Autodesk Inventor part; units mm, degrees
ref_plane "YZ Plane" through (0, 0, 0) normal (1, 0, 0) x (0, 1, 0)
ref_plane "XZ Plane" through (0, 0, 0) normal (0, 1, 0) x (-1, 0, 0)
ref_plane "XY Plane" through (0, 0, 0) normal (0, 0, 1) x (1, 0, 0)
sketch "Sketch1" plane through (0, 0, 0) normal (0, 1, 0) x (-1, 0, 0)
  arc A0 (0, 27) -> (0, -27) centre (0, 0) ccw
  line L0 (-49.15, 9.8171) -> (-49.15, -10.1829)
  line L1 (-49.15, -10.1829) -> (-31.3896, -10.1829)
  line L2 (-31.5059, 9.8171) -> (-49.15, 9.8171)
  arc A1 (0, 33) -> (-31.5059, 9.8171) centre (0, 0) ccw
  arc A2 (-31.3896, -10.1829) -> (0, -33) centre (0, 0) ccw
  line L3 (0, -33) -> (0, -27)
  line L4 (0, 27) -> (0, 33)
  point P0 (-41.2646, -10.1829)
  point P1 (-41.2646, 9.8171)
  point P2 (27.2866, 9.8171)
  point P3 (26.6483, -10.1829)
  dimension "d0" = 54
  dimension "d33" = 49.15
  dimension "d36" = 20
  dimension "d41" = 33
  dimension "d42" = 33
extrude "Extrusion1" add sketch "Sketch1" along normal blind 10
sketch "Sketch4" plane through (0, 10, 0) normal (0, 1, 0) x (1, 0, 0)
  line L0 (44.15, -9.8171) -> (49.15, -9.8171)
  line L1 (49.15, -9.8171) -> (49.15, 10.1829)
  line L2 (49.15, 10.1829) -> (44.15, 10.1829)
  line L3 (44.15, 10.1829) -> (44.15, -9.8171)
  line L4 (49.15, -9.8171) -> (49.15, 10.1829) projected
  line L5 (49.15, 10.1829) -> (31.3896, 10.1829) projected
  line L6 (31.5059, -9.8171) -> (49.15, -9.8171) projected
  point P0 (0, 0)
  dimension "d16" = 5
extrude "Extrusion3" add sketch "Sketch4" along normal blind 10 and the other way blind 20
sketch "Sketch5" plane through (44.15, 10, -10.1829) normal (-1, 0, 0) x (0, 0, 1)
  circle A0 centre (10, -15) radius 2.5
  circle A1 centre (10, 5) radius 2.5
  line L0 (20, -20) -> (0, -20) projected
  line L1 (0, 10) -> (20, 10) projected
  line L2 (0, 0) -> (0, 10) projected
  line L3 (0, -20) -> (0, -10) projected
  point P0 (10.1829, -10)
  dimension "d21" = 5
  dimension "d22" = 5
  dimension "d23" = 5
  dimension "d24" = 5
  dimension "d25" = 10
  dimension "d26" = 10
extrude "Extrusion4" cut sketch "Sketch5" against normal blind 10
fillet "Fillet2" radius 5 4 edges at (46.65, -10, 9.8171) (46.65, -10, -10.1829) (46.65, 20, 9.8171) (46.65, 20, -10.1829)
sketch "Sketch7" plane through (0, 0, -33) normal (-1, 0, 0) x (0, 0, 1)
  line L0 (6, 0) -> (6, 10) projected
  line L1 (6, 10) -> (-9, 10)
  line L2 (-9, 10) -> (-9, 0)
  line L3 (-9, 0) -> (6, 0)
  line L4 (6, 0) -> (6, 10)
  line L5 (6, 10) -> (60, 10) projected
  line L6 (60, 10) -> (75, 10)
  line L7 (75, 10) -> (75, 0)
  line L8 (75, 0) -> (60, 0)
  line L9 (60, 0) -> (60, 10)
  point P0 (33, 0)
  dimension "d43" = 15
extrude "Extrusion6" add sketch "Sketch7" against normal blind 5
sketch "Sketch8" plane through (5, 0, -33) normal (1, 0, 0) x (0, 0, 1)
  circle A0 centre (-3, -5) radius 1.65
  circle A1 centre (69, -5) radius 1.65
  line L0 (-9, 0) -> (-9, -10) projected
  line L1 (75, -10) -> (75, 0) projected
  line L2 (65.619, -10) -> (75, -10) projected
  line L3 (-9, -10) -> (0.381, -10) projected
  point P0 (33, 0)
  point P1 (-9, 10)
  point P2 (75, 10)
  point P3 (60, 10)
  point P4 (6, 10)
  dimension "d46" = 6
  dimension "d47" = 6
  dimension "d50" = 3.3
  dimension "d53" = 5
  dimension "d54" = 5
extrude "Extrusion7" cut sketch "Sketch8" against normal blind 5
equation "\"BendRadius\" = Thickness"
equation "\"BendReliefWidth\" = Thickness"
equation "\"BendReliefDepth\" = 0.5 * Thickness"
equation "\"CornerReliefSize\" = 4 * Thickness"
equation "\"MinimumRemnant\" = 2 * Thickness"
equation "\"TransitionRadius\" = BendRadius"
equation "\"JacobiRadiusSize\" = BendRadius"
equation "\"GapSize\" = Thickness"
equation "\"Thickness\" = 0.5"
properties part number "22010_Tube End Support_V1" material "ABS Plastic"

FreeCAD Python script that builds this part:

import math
import FreeCAD as App
import Part
import Sketcher


def edges_at(feature, points):
    """Names of the edges that pass closest to the given points."""
    edges = feature.Shape.Edges
    near = lambda p: min(range(len(edges)), key=lambda i: edges[i].distToShape(Part.Vertex(*p))[0])
    return sorted({f"Edge{near(p) + 1}" for p in points})

doc = App.newDocument("Part")
body = doc.addObject("PartDesign::Body", "Body")

# Sketch on XZ plane
sketch1 = body.newObject("Sketcher::SketchObject", "Sketch")
sketch1.AttachmentSupport = (doc.getObject("XZ_Plane"), [""])
sketch1.MapMode = "FlatFace"
sketch1.addGeometry([
    Part.ArcOfCircle(Part.Circle(App.Vector(0, 0, 0), App.Vector(0, 0, 1), 27), math.radians(-90), math.radians(90)),  # 0
    Part.LineSegment(App.Vector(0, 27, 0), App.Vector(0, 33, 0)),  # 1
    Part.ArcOfCircle(Part.Circle(App.Vector(0, 0, 0), App.Vector(0, 0, 1), 32.999976), math.radians(17.306805), math.radians(90)),  # 2
    Part.LineSegment(App.Vector(31.5059, 9.8171, 0), App.Vector(49.15, 9.8171, 0)),  # 3
    Part.LineSegment(App.Vector(49.15, 9.8171, 0), App.Vector(49.15, -10.1829, 0)),  # 4
    Part.LineSegment(App.Vector(49.15, -10.1829, 0), App.Vector(31.3896, -10.1829, 0)),  # 5
    Part.ArcOfCircle(Part.Circle(App.Vector(0, 0, 0), App.Vector(0, 0, 1), 33), math.radians(-90), math.radians(-17.973251)),  # 6
    Part.LineSegment(App.Vector(0, -33, 0), App.Vector(0, -27, 0)),  # 7
], False)
sketch1.addConstraint([
    Sketcher.Constraint("Coincident", 0, 2, 1, 1),
    Sketcher.Constraint("Coincident", 1, 2, 2, 2),
    Sketcher.Constraint("Coincident", 2, 1, 3, 1),
    Sketcher.Constraint("Coincident", 3, 2, 4, 1),
    Sketcher.Constraint("Coincident", 4, 2, 5, 1),
    Sketcher.Constraint("Coincident", 5, 2, 6, 2),
    Sketcher.Constraint("Coincident", 6, 1, 7, 1),
    Sketcher.Constraint("Coincident", 7, 2, 0, 1),
    Sketcher.Constraint("Vertical", 1),
    Sketcher.Constraint("Horizontal", 3),
    Sketcher.Constraint("Vertical", 4),
    Sketcher.Constraint("Horizontal", 5),
    Sketcher.Constraint("Vertical", 7),
    Sketcher.Constraint("Coincident", 0, 3, -1, 1),
    Sketcher.Constraint("Coincident", 2, 3, -1, 1),
    Sketcher.Constraint("Coincident", 6, 3, -1, 1),
    Sketcher.Constraint("Equal", 2, 6),
    Sketcher.Constraint("PointOnObject", 0, 2, -2),
    Sketcher.Constraint("PointOnObject", 6, 1, -2),
    Sketcher.Constraint("Radius", 0, 27.0),
    Sketcher.Constraint("Radius", 2, 33.0),
    Sketcher.Constraint("DistanceY", 4, 2, 4, 1, 20.0),
    Sketcher.Constraint("DistanceX", -1, 1, 3, 2, 49.15),
    Sketcher.Constraint("DistanceX", 3, 1, 3, 2, 17.644),
])
pad1 = body.newObject("PartDesign::Pad", "Pad")
pad1.Profile = sketch1
pad1.Length = 10
pad1.Reversed = True

# Sketch on XZ plane
sketch2 = body.newObject("Sketcher::SketchObject", "Sketch001")
sketch2.AttachmentSupport = (doc.getObject("XZ_Plane"), [""])
sketch2.MapMode = "FlatFace"
sketch2.AttachmentOffset = App.Placement(App.Vector(0, 0, -10), App.Rotation())
sketch2.addGeometry([
    Part.LineSegment(App.Vector(44.15, -10.1829, 0), App.Vector(44.15, 9.8171, 0)),
    Part.LineSegment(App.Vector(44.15, 9.8171, 0), App.Vector(49.15, 9.8171, 0)),
    Part.LineSegment(App.Vector(49.15, 9.8171, 0), App.Vector(49.15, -10.1829, 0)),
    Part.LineSegment(App.Vector(49.15, -10.1829, 0), App.Vector(44.15, -10.1829, 0)),
], False)
sketch2.addConstraint([
    Sketcher.Constraint("Coincident", 0, 2, 1, 1),
    Sketcher.Constraint("Coincident", 1, 2, 2, 1),
    Sketcher.Constraint("Coincident", 2, 2, 3, 1),
    Sketcher.Constraint("Coincident", 3, 2, 0, 1),
    Sketcher.Constraint("Vertical", 0),
    Sketcher.Constraint("Horizontal", 1),
    Sketcher.Constraint("Vertical", 2),
    Sketcher.Constraint("Horizontal", 3),
    Sketcher.Constraint("DistanceX", 1, 1, 1, 2, 5.0),
    Sketcher.Constraint("DistanceY", 0, 1, 0, 2, 20.0),
    Sketcher.Constraint("DistanceX", -1, 1, 0, 2, 44.15),
    Sketcher.Constraint("DistanceY", -1, 1, 0, 2, 9.817),
])
pad2 = body.newObject("PartDesign::Pad", "Pad001")
pad2.Profile = sketch2
pad2.Type = "TwoLengths"
pad2.Length = 10
pad2.Length2 = 20
pad2.Reversed = True

# Sketch on YZ plane
sketch3 = body.newObject("Sketcher::SketchObject", "Sketch002")
sketch3.AttachmentSupport = (doc.getObject("YZ_Plane"), [""])
sketch3.MapMode = "FlatFace"
sketch3.AttachmentOffset = App.Placement(App.Vector(0, 0, 44.15), App.Rotation())
sketch3.addGeometry([
    Part.Circle(App.Vector(-5, -0.1829, 0), App.Vector(0, 0, 1), 2.5),
    Part.Circle(App.Vector(15, -0.1829, 0), App.Vector(0, 0, 1), 2.5),
], False)
sketch3.addConstraint([
    Sketcher.Constraint("Equal", 0, 1),
    Sketcher.Constraint("Horizontal", 0, 3, 1, 3),
    Sketcher.Constraint("Diameter", 0, 5.0),
    Sketcher.Constraint("DistanceX", 0, 3, -1, 1, 5.0),
    Sketcher.Constraint("DistanceX", -1, 1, 1, 3, 15.0),
    Sketcher.Constraint("DistanceY", 0, 3, -1, 1, 0.183),
])
pocket1 = body.newObject("PartDesign::Pocket", "Pocket")
pocket1.Profile = sketch3
pocket1.Length = 10
pocket1.Reversed = True
doc.recompute()

fillet = body.newObject("PartDesign::Fillet", "Fillet")
fillet.Base = (pocket1, edges_at(pocket1, [
    (46.65, -10, 9.817),
    (46.65, -10, -10.183),
    (46.65, 20, 9.817),
    (46.65, 20, -10.183),
]))
fillet.Radius = 5

# Sketch on YZ plane
sketch4 = body.newObject("Sketcher::SketchObject", "Sketch003")
sketch4.AttachmentSupport = (doc.getObject("YZ_Plane"), [""])
sketch4.MapMode = "FlatFace"
sketch4.addGeometry([
    Part.LineSegment(App.Vector(0, -42, 0), App.Vector(0, -27, 0)),  # 0
    Part.LineSegment(App.Vector(0, -27, 0), App.Vector(10, -27, 0)),  # 1
    Part.LineSegment(App.Vector(10, -27, 0), App.Vector(10, -42, 0)),  # 2
    Part.LineSegment(App.Vector(10, -42, 0), App.Vector(0, -42, 0)),  # 3
    Part.LineSegment(App.Vector(10, 42, 0), App.Vector(10, 27, 0)),  # 4
    Part.LineSegment(App.Vector(10, 27, 0), App.Vector(0, 27, 0)),  # 5
    Part.LineSegment(App.Vector(0, 27, 0), App.Vector(0, 42, 0)),  # 6
    Part.LineSegment(App.Vector(0, 42, 0), App.Vector(10, 42, 0)),  # 7
], False)
sketch4.addConstraint([
    Sketcher.Constraint("Coincident", 0, 2, 1, 1),
    Sketcher.Constraint("Coincident", 1, 2, 2, 1),
    Sketcher.Constraint("Coincident", 2, 2, 3, 1),
    Sketcher.Constraint("Coincident", 3, 2, 0, 1),
    Sketcher.Constraint("Coincident", 4, 2, 5, 1),
    Sketcher.Constraint("Coincident", 5, 2, 6, 1),
    Sketcher.Constraint("Coincident", 6, 2, 7, 1),
    Sketcher.Constraint("Coincident", 7, 2, 4, 1),
    Sketcher.Constraint("Vertical", 0),
    Sketcher.Constraint("Horizontal", 1),
    Sketcher.Constraint("Vertical", 2),
    Sketcher.Constraint("Horizontal", 3),
    Sketcher.Constraint("Vertical", 4),
    Sketcher.Constraint("Horizontal", 5),
    Sketcher.Constraint("Vertical", 6),
    Sketcher.Constraint("Horizontal", 7),
    Sketcher.Constraint("Symmetric", 0, 2, 5, 2, -1, 1),
    Sketcher.Constraint("Symmetric", 3, 2, 6, 2, -1),
    Sketcher.Constraint("Vertical", 2, 2, 4, 2),
    Sketcher.Constraint("DistanceY", 0, 1, 0, 2, 15.0),
    Sketcher.Constraint("DistanceX", 1, 1, 1, 2, 10.0),
    Sketcher.Constraint("DistanceY", 0, 2, -1, 1, 27.0),
])
pad3 = body.newObject("PartDesign::Pad", "Pad002")
pad3.Profile = sketch4
pad3.Length = 5

# Sketch on YZ plane
sketch5 = body.newObject("Sketcher::SketchObject", "Sketch004")
sketch5.AttachmentSupport = (doc.getObject("YZ_Plane"), [""])
sketch5.MapMode = "FlatFace"
sketch5.AttachmentOffset = App.Placement(App.Vector(0, 0, 5), App.Rotation())
sketch5.addGeometry([
    Part.Circle(App.Vector(5, -36, 0), App.Vector(0, 0, 1), 1.65),
    Part.Circle(App.Vector(5, 36, 0), App.Vector(0, 0, 1), 1.65),
], False)
sketch5.addConstraint([
    Sketcher.Constraint("Equal", 0, 1),
    Sketcher.Constraint("Symmetric", 0, 3, 1, 3, -1),
    Sketcher.Constraint("Diameter", 0, 3.3),
    Sketcher.Constraint("DistanceX", -1, 1, 0, 3, 5.0),
    Sketcher.Constraint("DistanceY", 0, 3, -1, 1, 36.0),
])
pocket2 = body.newObject("PartDesign::Pocket", "Pocket001")
pocket2.Profile = sketch5
pocket2.Length = 5

doc.recompute()
